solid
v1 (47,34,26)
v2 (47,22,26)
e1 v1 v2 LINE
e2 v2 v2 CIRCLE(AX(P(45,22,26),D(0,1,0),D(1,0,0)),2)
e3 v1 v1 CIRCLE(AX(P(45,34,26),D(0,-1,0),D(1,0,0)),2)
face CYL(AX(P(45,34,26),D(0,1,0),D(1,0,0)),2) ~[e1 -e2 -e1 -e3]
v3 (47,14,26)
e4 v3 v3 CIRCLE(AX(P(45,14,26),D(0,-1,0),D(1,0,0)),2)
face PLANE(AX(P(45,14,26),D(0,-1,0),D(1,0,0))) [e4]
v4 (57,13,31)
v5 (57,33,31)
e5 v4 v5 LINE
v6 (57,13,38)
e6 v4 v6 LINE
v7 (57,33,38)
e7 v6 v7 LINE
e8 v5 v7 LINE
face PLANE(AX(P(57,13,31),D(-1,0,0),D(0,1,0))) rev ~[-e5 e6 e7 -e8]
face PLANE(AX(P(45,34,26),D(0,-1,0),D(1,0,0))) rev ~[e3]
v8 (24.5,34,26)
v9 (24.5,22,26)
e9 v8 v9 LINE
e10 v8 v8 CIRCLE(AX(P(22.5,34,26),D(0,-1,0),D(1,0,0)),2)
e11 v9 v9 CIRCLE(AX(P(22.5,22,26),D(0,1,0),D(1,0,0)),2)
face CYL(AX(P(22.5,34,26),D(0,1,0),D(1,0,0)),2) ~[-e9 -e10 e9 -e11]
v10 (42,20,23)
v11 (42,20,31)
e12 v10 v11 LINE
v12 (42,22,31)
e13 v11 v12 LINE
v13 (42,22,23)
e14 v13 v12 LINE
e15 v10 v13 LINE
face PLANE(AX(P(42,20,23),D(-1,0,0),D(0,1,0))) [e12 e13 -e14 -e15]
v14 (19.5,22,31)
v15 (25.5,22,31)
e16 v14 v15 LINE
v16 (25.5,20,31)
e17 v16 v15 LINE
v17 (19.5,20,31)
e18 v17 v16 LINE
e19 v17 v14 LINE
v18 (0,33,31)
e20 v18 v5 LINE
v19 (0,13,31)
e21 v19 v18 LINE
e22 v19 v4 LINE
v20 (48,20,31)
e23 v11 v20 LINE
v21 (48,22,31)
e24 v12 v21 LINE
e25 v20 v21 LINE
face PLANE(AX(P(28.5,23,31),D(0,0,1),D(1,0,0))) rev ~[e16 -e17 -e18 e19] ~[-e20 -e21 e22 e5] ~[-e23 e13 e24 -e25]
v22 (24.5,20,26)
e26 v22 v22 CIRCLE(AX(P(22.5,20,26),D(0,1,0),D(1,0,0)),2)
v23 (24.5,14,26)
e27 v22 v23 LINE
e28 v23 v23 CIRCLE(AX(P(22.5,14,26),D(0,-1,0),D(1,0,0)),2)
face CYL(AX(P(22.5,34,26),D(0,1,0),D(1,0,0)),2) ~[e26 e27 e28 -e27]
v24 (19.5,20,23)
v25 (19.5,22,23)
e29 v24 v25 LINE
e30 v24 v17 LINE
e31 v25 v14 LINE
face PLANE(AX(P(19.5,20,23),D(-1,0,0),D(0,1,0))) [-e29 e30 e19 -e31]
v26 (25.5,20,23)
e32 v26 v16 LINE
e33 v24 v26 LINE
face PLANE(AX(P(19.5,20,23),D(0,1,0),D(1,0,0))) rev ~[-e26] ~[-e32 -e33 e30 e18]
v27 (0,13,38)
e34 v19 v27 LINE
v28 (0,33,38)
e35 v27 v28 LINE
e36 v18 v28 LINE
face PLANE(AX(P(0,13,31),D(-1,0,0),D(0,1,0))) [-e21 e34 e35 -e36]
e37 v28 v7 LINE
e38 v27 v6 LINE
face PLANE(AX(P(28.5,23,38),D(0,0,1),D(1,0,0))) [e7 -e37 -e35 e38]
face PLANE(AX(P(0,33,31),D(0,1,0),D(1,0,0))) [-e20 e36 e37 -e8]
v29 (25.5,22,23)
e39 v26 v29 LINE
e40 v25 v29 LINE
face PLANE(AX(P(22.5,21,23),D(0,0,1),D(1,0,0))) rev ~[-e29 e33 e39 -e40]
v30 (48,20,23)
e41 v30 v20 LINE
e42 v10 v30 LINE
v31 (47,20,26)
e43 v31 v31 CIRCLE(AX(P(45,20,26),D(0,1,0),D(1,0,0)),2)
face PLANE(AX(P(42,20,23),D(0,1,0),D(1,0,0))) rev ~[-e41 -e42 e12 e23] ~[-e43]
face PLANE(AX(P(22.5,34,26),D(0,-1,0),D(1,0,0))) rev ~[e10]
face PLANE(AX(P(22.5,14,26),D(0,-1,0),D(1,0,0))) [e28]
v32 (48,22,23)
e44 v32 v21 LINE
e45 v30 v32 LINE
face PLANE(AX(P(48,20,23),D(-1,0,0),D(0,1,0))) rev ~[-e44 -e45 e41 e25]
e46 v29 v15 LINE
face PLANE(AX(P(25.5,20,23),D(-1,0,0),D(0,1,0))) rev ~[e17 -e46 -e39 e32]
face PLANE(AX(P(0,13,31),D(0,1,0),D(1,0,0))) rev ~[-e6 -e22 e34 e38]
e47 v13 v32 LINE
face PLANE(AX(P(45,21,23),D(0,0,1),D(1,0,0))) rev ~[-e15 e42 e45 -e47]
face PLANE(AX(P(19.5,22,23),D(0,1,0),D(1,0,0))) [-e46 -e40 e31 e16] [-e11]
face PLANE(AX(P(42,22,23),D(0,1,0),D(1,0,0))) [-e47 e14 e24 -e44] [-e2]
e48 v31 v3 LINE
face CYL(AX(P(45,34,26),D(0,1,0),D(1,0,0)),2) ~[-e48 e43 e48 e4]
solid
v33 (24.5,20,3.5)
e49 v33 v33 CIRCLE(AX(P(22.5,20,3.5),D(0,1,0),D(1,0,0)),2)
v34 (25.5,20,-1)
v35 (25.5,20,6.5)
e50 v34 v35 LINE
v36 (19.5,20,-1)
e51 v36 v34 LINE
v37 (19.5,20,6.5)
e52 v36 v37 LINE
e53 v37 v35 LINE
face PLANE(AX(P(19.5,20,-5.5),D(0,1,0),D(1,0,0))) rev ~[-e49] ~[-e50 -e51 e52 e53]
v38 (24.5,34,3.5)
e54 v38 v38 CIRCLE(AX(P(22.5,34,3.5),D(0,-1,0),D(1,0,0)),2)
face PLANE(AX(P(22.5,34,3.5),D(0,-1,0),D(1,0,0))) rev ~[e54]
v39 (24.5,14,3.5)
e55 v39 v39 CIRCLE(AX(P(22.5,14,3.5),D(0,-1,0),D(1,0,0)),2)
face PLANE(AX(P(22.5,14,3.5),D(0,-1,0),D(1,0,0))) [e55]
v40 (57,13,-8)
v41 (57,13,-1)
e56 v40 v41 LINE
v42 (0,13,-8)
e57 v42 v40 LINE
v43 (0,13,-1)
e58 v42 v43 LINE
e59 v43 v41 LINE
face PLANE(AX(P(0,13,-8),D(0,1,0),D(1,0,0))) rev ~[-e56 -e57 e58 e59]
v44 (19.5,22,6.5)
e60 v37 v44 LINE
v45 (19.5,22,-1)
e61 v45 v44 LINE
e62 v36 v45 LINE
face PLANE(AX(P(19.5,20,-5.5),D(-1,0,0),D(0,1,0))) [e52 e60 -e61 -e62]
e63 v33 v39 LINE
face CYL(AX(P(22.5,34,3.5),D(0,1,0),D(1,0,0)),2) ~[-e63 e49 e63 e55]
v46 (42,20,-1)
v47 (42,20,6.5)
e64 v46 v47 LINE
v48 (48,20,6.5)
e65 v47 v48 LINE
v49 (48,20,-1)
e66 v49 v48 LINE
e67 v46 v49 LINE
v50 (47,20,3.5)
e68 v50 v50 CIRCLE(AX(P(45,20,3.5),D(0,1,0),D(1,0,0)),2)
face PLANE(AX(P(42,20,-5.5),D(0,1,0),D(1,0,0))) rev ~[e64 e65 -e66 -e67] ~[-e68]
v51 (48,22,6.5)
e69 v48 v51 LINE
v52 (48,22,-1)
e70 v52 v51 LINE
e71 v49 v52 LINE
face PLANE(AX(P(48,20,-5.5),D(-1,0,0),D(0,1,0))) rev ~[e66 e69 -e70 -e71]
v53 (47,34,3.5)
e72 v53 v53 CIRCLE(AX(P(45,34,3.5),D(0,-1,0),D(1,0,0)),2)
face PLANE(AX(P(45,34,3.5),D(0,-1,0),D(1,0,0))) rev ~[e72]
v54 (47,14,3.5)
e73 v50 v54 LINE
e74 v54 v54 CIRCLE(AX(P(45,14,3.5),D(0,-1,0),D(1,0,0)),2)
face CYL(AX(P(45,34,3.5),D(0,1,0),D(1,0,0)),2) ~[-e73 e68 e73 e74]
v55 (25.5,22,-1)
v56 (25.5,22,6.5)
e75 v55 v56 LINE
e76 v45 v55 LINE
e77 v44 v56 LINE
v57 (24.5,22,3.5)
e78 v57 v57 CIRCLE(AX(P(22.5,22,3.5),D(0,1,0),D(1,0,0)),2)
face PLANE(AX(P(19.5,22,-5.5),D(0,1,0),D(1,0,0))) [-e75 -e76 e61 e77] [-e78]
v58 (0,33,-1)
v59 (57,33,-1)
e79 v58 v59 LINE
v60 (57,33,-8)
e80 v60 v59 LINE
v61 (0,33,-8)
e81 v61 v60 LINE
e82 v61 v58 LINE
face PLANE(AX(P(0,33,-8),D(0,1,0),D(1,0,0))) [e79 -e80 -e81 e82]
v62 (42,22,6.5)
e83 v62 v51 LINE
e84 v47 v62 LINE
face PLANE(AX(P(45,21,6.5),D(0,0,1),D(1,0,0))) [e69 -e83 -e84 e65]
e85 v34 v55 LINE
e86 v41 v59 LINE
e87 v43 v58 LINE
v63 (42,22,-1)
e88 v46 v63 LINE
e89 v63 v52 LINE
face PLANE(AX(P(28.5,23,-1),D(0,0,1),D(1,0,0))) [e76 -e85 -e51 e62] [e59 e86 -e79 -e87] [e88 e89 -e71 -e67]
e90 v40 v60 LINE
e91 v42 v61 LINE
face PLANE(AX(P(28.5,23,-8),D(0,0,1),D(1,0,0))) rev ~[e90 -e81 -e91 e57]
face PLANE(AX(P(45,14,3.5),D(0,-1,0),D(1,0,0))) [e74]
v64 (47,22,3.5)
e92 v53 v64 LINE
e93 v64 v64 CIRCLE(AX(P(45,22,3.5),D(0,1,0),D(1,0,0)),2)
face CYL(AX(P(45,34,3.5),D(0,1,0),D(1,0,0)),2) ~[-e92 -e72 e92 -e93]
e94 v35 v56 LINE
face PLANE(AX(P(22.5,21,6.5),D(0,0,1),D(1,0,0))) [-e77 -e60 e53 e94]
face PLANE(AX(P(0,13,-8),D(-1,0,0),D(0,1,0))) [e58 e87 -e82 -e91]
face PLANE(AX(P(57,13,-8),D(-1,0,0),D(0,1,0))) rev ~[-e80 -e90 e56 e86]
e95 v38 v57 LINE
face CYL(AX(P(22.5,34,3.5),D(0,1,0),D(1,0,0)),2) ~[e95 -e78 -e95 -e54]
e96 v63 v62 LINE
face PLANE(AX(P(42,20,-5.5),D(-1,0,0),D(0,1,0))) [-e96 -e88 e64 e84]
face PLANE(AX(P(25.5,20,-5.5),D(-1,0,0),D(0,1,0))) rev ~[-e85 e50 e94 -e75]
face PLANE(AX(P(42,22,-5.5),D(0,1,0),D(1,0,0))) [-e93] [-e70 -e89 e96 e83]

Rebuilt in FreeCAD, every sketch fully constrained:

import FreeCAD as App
import Part
import Sketcher

V = App.Vector
Q = App.Units.Quantity


def add_polygon(sketch, points):
    """Adds a closed chain of lines whose ends are joined by coincident constraints."""
    first, n = sketch.GeometryCount, len(points)
    for a, b in zip(points, points[1:] + points[:1]):
        sketch.addGeometry(Part.LineSegment(App.Vector(*a, 0), App.Vector(*b, 0)), False)
    for i in range(n):
        sketch.addConstraint(Sketcher.Constraint("Coincident", first + i, 2, first + (i + 1) % n, 1))

doc = App.newDocument("Part")
body = doc.addObject("PartDesign::Body", "Body")

sketch1 = body.newObject("Sketcher::SketchObject", "Sketch")
sketch1.AttachmentSupport = (doc.getObject("XY_Plane"), [""])
sketch1.MapMode = "FlatFace"
sketch1.AttachmentOffset = App.Placement(V(0, 0, 31), App.Rotation())
add_polygon(sketch1, [(0, 33), (0, 13), (57, 13), (57, 33)])
sketch1.addConstraint(Sketcher.Constraint("Vertical", 0))
sketch1.addConstraint(Sketcher.Constraint("Horizontal", 1))
sketch1.addConstraint(Sketcher.Constraint("Vertical", 2))
sketch1.addConstraint(Sketcher.Constraint("Horizontal", 3))
sketch1.addConstraint(Sketcher.Constraint("PointOnObject", 0, 2, -2))
sketch1.addConstraint(Sketcher.Constraint("DistanceX", 1, 1, 1, 2, Q("57 mm")))
sketch1.addConstraint(Sketcher.Constraint("DistanceY", 0, 2, 0, 1, Q("20 mm")))
sketch1.addConstraint(Sketcher.Constraint("DistanceY", -1, 1, 0, 2, Q("13 mm")))
pad1 = body.newObject("PartDesign::Pad", "Pad")
pad1.Profile = sketch1
pad1.Length = 7
body2 = doc.addObject("PartDesign::Body", "Body001")
body2.AllowCompound = True

sketch2 = body2.newObject("Sketcher::SketchObject", "Sketch001")
sketch2.AttachmentSupport = (doc.getObject("XY_Plane001"), [""])
sketch2.MapMode = "FlatFace"
sketch2.AttachmentOffset = App.Placement(V(0, 0, -8), App.Rotation())
add_polygon(sketch2, [(0, 33), (0, 13), (57, 13), (57, 33)])
sketch2.addConstraint(Sketcher.Constraint("Vertical", 0))
sketch2.addConstraint(Sketcher.Constraint("Horizontal", 1))
sketch2.addConstraint(Sketcher.Constraint("Vertical", 2))
sketch2.addConstraint(Sketcher.Constraint("Horizontal", 3))
sketch2.addConstraint(Sketcher.Constraint("PointOnObject", 0, 2, -2))
sketch2.addConstraint(Sketcher.Constraint("DistanceX", 1, 1, 1, 2, Q("57 mm")))
sketch2.addConstraint(Sketcher.Constraint("DistanceY", 0, 2, 0, 1, Q("20 mm")))
sketch2.addConstraint(Sketcher.Constraint("DistanceY", -1, 1, 0, 2, Q("13 mm")))
pad2 = body2.newObject("PartDesign::Pad", "Pad001")
pad2.Profile = sketch2
pad2.Length = 7
doc.recompute()

boolean = body2.newObject("PartDesign::Boolean", "Boolean")
boolean.Type = "Fuse"
boolean.addObjects([body])
body3 = doc.addObject("PartDesign::Body", "Body002")

sketch3 = body3.newObject("Sketcher::SketchObject", "Sketch002")
sketch3.AttachmentSupport = (doc.getObject("XY_Plane002"), [""])
sketch3.MapMode = "FlatFace"
sketch3.AttachmentOffset = App.Placement(V(0, 0, -5.5), App.Rotation())
add_polygon(sketch3, [(42, -2), (42, -4), (48, -4), (48, -2)])
sketch3.addConstraint(Sketcher.Constraint("Vertical", 0))
sketch3.addConstraint(Sketcher.Constraint("Horizontal", 1))
sketch3.addConstraint(Sketcher.Constraint("Vertical", 2))
sketch3.addConstraint(Sketcher.Constraint("Horizontal", 3))
sketch3.addConstraint(Sketcher.Constraint("DistanceX", 1, 1, 1, 2, Q("6 mm")))
sketch3.addConstraint(Sketcher.Constraint("DistanceY", 0, 2, 0, 1, Q("2 mm")))
sketch3.addConstraint(Sketcher.Constraint("DistanceX", -1, 1, 0, 2, Q("42 mm")))
sketch3.addConstraint(Sketcher.Constraint("DistanceY", 0, 2, -1, 1, Q("4 mm")))
pad3 = body3.newObject("PartDesign::Pad", "Pad002")
pad3.Profile = sketch3
pad3.Length = 12
body4 = doc.addObject("PartDesign::Body", "Body003")

sketch4 = body4.newObject("Sketcher::SketchObject", "Sketch003")
sketch4.AttachmentSupport = (doc.getObject("XY_Plane003"), [""])
sketch4.MapMode = "FlatFace"
sketch4.AttachmentOffset = App.Placement(V(0, 0, -5.5), App.Rotation())
add_polygon(sketch4, [(19.5, -2), (19.5, -4), (25.5, -4), (25.5, -2)])
sketch4.addConstraint(Sketcher.Constraint("Vertical", 0))
sketch4.addConstraint(Sketcher.Constraint("Horizontal", 1))
sketch4.addConstraint(Sketcher.Constraint("Vertical", 2))
sketch4.addConstraint(Sketcher.Constraint("Horizontal", 3))
sketch4.addConstraint(Sketcher.Constraint("DistanceX", 1, 1, 1, 2, Q("6 mm")))
sketch4.addConstraint(Sketcher.Constraint("DistanceY", 0, 2, 0, 1, Q("2 mm")))
sketch4.addConstraint(Sketcher.Constraint("DistanceY", 0, 2, -1, 1, Q("4 mm")))
sketch4.addConstraint(Sketcher.Constraint("DistanceX", -1, 1, 0, 2, Q("19.5 mm")))
pad4 = body4.newObject("PartDesign::Pad", "Pad003")
pad4.Profile = sketch4
pad4.Length = 12
body5 = doc.addObject("PartDesign::Body", "Body004")

sketch5 = body5.newObject("Sketcher::SketchObject", "Sketch004")
sketch5.AttachmentSupport = (doc.getObject("XY_Plane004"), [""])
sketch5.MapMode = "FlatFace"
sketch5.AttachmentOffset = App.Placement(V(0, 0, 23), App.Rotation())
add_polygon(sketch5, [(42, -2), (42, -4), (48, -4), (48, -2)])
sketch5.addConstraint(Sketcher.Constraint("Vertical", 0))
sketch5.addConstraint(Sketcher.Constraint("Horizontal", 1))
sketch5.addConstraint(Sketcher.Constraint("Vertical", 2))
sketch5.addConstraint(Sketcher.Constraint("Horizontal", 3))
sketch5.addConstraint(Sketcher.Constraint("DistanceX", 1, 1, 1, 2, Q("6 mm")))
sketch5.addConstraint(Sketcher.Constraint("DistanceY", 0, 2, 0, 1, Q("2 mm")))
sketch5.addConstraint(Sketcher.Constraint("DistanceX", -1, 1, 0, 2, Q("42 mm")))
sketch5.addConstraint(Sketcher.Constraint("DistanceY", 0, 2, -1, 1, Q("4 mm")))
pad5 = body5.newObject("PartDesign::Pad", "Pad004")
pad5.Profile = sketch5
pad5.Length = 12
body6 = doc.addObject("PartDesign::Body", "Body005")
body6.AllowCompound = True

sketch6 = body6.newObject("Sketcher::SketchObject", "Sketch005")
sketch6.AttachmentSupport = (doc.getObject("XY_Plane005"), [""])
sketch6.MapMode = "FlatFace"
sketch6.AttachmentOffset = App.Placement(V(0, 0, 23), App.Rotation())
add_polygon(sketch6, [(19.5, -2), (19.5, -4), (25.5, -4), (25.5, -2)])
sketch6.addConstraint(Sketcher.Constraint("Vertical", 0))
sketch6.addConstraint(Sketcher.Constraint("Horizontal", 1))
sketch6.addConstraint(Sketcher.Constraint("Vertical", 2))
sketch6.addConstraint(Sketcher.Constraint("Horizontal", 3))
sketch6.addConstraint(Sketcher.Constraint("DistanceX", 1, 1, 1, 2, Q("6 mm")))
sketch6.addConstraint(Sketcher.Constraint("DistanceY", 0, 2, 0, 1, Q("2 mm")))
sketch6.addConstraint(Sketcher.Constraint("DistanceY", 0, 2, -1, 1, Q("4 mm")))
sketch6.addConstraint(Sketcher.Constraint("DistanceX", -1, 1, 0, 2, Q("19.5 mm")))
pad6 = body6.newObject("PartDesign::Pad", "Pad005")
pad6.Profile = sketch6
pad6.Length = 12
doc.recompute()

boolean2 = body6.newObject("PartDesign::Boolean", "Boolean001")
boolean2.Type = "Fuse"
boolean2.addObjects([body3])
doc.recompute()

boolean3 = body6.newObject("PartDesign::Boolean", "Boolean002")
boolean3.Type = "Fuse"
boolean3.addObjects([body4])
doc.recompute()

boolean4 = body6.newObject("PartDesign::Boolean", "Boolean003")
boolean4.Type = "Fuse"
boolean4.addObjects([body5])
body7 = doc.addObject("PartDesign::Body", "Body006")

sketch7 = body7.newObject("Sketcher::SketchObject", "Sketch006")
sketch7.AttachmentSupport = (doc.getObject("XY_Plane006"), [""])
sketch7.MapMode = "FlatFace"
sketch7.addGeometry(Part.Circle(V(19, 14, 0), V(0, 0, 1), 2), False)
sketch7.addConstraint(Sketcher.Constraint("Diameter", 0, Q("4 mm")))
sketch7.addConstraint(Sketcher.Constraint("DistanceX", -1, 1, 0, 3, Q("19 mm")))
sketch7.addConstraint(Sketcher.Constraint("DistanceY", -1, 1, 0, 3, Q("14 mm")))
pad7 = body7.newObject("PartDesign::Pad", "Pad006")
pad7.Profile = sketch7
pad7.Length = 20
body8 = doc.addObject("PartDesign::Body", "Body007")

sketch8 = body8.newObject("Sketcher::SketchObject", "Sketch007")
sketch8.AttachmentSupport = (doc.getObject("XY_Plane007"), [""])
sketch8.MapMode = "FlatFace"
sketch8.addGeometry(Part.Circle(V(19, 36.5, 0), V(0, 0, 1), 2), False)
sketch8.addConstraint(Sketcher.Constraint("Diameter", 0, Q("4 mm")))
sketch8.addConstraint(Sketcher.Constraint("DistanceX", -1, 1, 0, 3, Q("19 mm")))
sketch8.addConstraint(Sketcher.Constraint("DistanceY", -1, 1, 0, 3, Q("36.5 mm")))
pad8 = body8.newObject("PartDesign::Pad", "Pad007")
pad8.Profile = sketch8
pad8.Length = 20
body9 = doc.addObject("PartDesign::Body", "Body008")

sketch9 = body9.newObject("Sketcher::SketchObject", "Sketch008")
sketch9.AttachmentSupport = (doc.getObject("XY_Plane008"), [""])
sketch9.MapMode = "FlatFace"
sketch9.addGeometry(Part.Circle(V(-3.5, 36.5, 0), V(0, 0, 1), 2), False)
sketch9.addConstraint(Sketcher.Constraint("Diameter", 0, Q("4 mm")))
sketch9.addConstraint(Sketcher.Constraint("DistanceX", 0, 3, -1, 1, Q("3.5 mm")))
sketch9.addConstraint(Sketcher.Constraint("DistanceY", -1, 1, 0, 3, Q("36.5 mm")))
pad9 = body9.newObject("PartDesign::Pad", "Pad008")
pad9.Profile = sketch9
pad9.Length = 20
body10 = doc.addObject("PartDesign::Body", "Body009")
body10.AllowCompound = True

sketch10 = body10.newObject("Sketcher::SketchObject", "Sketch009")
sketch10.AttachmentSupport = (doc.getObject("XY_Plane009"), [""])
sketch10.MapMode = "FlatFace"
sketch10.addGeometry(Part.Circle(V(-3.5, 14, 0), V(0, 0, 1), 2), False)
sketch10.addConstraint(Sketcher.Constraint("Diameter", 0, Q("4 mm")))
sketch10.addConstraint(Sketcher.Constraint("DistanceY", -1, 1, 0, 3, Q("14 mm")))
sketch10.addConstraint(Sketcher.Constraint("DistanceX", 0, 3, -1, 1, Q("3.5 mm")))
pad10 = body10.newObject("PartDesign::Pad", "Pad009")
pad10.Profile = sketch10
pad10.Length = 20
doc.recompute()

boolean5 = body10.newObject("PartDesign::Boolean", "Boolean004")
boolean5.Type = "Fuse"
boolean5.addObjects([body7])
doc.recompute()

boolean6 = body10.newObject("PartDesign::Boolean", "Boolean005")
boolean6.Type = "Fuse"
boolean6.addObjects([body8])
doc.recompute()

boolean7 = body10.newObject("PartDesign::Boolean", "Boolean006")
boolean7.Type = "Fuse"
boolean7.addObjects([body9])
body11 = doc.addObject("PartDesign::Body", "Body010")
body11.AllowCompound = True
doc.recompute()

body10.Placement = App.Placement(V(0, 0, 0), App.Rotation(V(1, 0, 0), 90))
boolean8 = body11.newObject("PartDesign::Boolean", "Boolean007")
boolean8.Type = "Fuse"
boolean8.addObjects([body10])
body12 = doc.addObject("PartDesign::Body", "Body011")
body12.AllowCompound = True
doc.recompute()

body11.Placement = App.Placement(V(26, 10, -10.5), App.Rotation(V(0, 0, 1), 0))
boolean9 = body12.newObject("PartDesign::Boolean", "Boolean008")
boolean9.Type = "Fuse"
boolean9.addObjects([body11])
doc.recompute()

boolean10 = body12.newObject("PartDesign::Boolean", "Boolean009")
boolean10.Type = "Fuse"
boolean10.addObjects([body6])
body13 = doc.addObject("PartDesign::Body", "Body012")
body13.AllowCompound = True
doc.recompute()

body12.Placement = App.Placement(V(0, 24, 0), App.Rotation(V(0, 0, 1), 0))
boolean11 = body13.newObject("PartDesign::Boolean", "Boolean010")
boolean11.Type = "Fuse"
boolean11.addObjects([body12])
doc.recompute()

boolean12 = body13.newObject("PartDesign::Boolean", "Boolean011")
boolean12.Type = "Fuse"
boolean12.addObjects([body2])

doc.recompute()
